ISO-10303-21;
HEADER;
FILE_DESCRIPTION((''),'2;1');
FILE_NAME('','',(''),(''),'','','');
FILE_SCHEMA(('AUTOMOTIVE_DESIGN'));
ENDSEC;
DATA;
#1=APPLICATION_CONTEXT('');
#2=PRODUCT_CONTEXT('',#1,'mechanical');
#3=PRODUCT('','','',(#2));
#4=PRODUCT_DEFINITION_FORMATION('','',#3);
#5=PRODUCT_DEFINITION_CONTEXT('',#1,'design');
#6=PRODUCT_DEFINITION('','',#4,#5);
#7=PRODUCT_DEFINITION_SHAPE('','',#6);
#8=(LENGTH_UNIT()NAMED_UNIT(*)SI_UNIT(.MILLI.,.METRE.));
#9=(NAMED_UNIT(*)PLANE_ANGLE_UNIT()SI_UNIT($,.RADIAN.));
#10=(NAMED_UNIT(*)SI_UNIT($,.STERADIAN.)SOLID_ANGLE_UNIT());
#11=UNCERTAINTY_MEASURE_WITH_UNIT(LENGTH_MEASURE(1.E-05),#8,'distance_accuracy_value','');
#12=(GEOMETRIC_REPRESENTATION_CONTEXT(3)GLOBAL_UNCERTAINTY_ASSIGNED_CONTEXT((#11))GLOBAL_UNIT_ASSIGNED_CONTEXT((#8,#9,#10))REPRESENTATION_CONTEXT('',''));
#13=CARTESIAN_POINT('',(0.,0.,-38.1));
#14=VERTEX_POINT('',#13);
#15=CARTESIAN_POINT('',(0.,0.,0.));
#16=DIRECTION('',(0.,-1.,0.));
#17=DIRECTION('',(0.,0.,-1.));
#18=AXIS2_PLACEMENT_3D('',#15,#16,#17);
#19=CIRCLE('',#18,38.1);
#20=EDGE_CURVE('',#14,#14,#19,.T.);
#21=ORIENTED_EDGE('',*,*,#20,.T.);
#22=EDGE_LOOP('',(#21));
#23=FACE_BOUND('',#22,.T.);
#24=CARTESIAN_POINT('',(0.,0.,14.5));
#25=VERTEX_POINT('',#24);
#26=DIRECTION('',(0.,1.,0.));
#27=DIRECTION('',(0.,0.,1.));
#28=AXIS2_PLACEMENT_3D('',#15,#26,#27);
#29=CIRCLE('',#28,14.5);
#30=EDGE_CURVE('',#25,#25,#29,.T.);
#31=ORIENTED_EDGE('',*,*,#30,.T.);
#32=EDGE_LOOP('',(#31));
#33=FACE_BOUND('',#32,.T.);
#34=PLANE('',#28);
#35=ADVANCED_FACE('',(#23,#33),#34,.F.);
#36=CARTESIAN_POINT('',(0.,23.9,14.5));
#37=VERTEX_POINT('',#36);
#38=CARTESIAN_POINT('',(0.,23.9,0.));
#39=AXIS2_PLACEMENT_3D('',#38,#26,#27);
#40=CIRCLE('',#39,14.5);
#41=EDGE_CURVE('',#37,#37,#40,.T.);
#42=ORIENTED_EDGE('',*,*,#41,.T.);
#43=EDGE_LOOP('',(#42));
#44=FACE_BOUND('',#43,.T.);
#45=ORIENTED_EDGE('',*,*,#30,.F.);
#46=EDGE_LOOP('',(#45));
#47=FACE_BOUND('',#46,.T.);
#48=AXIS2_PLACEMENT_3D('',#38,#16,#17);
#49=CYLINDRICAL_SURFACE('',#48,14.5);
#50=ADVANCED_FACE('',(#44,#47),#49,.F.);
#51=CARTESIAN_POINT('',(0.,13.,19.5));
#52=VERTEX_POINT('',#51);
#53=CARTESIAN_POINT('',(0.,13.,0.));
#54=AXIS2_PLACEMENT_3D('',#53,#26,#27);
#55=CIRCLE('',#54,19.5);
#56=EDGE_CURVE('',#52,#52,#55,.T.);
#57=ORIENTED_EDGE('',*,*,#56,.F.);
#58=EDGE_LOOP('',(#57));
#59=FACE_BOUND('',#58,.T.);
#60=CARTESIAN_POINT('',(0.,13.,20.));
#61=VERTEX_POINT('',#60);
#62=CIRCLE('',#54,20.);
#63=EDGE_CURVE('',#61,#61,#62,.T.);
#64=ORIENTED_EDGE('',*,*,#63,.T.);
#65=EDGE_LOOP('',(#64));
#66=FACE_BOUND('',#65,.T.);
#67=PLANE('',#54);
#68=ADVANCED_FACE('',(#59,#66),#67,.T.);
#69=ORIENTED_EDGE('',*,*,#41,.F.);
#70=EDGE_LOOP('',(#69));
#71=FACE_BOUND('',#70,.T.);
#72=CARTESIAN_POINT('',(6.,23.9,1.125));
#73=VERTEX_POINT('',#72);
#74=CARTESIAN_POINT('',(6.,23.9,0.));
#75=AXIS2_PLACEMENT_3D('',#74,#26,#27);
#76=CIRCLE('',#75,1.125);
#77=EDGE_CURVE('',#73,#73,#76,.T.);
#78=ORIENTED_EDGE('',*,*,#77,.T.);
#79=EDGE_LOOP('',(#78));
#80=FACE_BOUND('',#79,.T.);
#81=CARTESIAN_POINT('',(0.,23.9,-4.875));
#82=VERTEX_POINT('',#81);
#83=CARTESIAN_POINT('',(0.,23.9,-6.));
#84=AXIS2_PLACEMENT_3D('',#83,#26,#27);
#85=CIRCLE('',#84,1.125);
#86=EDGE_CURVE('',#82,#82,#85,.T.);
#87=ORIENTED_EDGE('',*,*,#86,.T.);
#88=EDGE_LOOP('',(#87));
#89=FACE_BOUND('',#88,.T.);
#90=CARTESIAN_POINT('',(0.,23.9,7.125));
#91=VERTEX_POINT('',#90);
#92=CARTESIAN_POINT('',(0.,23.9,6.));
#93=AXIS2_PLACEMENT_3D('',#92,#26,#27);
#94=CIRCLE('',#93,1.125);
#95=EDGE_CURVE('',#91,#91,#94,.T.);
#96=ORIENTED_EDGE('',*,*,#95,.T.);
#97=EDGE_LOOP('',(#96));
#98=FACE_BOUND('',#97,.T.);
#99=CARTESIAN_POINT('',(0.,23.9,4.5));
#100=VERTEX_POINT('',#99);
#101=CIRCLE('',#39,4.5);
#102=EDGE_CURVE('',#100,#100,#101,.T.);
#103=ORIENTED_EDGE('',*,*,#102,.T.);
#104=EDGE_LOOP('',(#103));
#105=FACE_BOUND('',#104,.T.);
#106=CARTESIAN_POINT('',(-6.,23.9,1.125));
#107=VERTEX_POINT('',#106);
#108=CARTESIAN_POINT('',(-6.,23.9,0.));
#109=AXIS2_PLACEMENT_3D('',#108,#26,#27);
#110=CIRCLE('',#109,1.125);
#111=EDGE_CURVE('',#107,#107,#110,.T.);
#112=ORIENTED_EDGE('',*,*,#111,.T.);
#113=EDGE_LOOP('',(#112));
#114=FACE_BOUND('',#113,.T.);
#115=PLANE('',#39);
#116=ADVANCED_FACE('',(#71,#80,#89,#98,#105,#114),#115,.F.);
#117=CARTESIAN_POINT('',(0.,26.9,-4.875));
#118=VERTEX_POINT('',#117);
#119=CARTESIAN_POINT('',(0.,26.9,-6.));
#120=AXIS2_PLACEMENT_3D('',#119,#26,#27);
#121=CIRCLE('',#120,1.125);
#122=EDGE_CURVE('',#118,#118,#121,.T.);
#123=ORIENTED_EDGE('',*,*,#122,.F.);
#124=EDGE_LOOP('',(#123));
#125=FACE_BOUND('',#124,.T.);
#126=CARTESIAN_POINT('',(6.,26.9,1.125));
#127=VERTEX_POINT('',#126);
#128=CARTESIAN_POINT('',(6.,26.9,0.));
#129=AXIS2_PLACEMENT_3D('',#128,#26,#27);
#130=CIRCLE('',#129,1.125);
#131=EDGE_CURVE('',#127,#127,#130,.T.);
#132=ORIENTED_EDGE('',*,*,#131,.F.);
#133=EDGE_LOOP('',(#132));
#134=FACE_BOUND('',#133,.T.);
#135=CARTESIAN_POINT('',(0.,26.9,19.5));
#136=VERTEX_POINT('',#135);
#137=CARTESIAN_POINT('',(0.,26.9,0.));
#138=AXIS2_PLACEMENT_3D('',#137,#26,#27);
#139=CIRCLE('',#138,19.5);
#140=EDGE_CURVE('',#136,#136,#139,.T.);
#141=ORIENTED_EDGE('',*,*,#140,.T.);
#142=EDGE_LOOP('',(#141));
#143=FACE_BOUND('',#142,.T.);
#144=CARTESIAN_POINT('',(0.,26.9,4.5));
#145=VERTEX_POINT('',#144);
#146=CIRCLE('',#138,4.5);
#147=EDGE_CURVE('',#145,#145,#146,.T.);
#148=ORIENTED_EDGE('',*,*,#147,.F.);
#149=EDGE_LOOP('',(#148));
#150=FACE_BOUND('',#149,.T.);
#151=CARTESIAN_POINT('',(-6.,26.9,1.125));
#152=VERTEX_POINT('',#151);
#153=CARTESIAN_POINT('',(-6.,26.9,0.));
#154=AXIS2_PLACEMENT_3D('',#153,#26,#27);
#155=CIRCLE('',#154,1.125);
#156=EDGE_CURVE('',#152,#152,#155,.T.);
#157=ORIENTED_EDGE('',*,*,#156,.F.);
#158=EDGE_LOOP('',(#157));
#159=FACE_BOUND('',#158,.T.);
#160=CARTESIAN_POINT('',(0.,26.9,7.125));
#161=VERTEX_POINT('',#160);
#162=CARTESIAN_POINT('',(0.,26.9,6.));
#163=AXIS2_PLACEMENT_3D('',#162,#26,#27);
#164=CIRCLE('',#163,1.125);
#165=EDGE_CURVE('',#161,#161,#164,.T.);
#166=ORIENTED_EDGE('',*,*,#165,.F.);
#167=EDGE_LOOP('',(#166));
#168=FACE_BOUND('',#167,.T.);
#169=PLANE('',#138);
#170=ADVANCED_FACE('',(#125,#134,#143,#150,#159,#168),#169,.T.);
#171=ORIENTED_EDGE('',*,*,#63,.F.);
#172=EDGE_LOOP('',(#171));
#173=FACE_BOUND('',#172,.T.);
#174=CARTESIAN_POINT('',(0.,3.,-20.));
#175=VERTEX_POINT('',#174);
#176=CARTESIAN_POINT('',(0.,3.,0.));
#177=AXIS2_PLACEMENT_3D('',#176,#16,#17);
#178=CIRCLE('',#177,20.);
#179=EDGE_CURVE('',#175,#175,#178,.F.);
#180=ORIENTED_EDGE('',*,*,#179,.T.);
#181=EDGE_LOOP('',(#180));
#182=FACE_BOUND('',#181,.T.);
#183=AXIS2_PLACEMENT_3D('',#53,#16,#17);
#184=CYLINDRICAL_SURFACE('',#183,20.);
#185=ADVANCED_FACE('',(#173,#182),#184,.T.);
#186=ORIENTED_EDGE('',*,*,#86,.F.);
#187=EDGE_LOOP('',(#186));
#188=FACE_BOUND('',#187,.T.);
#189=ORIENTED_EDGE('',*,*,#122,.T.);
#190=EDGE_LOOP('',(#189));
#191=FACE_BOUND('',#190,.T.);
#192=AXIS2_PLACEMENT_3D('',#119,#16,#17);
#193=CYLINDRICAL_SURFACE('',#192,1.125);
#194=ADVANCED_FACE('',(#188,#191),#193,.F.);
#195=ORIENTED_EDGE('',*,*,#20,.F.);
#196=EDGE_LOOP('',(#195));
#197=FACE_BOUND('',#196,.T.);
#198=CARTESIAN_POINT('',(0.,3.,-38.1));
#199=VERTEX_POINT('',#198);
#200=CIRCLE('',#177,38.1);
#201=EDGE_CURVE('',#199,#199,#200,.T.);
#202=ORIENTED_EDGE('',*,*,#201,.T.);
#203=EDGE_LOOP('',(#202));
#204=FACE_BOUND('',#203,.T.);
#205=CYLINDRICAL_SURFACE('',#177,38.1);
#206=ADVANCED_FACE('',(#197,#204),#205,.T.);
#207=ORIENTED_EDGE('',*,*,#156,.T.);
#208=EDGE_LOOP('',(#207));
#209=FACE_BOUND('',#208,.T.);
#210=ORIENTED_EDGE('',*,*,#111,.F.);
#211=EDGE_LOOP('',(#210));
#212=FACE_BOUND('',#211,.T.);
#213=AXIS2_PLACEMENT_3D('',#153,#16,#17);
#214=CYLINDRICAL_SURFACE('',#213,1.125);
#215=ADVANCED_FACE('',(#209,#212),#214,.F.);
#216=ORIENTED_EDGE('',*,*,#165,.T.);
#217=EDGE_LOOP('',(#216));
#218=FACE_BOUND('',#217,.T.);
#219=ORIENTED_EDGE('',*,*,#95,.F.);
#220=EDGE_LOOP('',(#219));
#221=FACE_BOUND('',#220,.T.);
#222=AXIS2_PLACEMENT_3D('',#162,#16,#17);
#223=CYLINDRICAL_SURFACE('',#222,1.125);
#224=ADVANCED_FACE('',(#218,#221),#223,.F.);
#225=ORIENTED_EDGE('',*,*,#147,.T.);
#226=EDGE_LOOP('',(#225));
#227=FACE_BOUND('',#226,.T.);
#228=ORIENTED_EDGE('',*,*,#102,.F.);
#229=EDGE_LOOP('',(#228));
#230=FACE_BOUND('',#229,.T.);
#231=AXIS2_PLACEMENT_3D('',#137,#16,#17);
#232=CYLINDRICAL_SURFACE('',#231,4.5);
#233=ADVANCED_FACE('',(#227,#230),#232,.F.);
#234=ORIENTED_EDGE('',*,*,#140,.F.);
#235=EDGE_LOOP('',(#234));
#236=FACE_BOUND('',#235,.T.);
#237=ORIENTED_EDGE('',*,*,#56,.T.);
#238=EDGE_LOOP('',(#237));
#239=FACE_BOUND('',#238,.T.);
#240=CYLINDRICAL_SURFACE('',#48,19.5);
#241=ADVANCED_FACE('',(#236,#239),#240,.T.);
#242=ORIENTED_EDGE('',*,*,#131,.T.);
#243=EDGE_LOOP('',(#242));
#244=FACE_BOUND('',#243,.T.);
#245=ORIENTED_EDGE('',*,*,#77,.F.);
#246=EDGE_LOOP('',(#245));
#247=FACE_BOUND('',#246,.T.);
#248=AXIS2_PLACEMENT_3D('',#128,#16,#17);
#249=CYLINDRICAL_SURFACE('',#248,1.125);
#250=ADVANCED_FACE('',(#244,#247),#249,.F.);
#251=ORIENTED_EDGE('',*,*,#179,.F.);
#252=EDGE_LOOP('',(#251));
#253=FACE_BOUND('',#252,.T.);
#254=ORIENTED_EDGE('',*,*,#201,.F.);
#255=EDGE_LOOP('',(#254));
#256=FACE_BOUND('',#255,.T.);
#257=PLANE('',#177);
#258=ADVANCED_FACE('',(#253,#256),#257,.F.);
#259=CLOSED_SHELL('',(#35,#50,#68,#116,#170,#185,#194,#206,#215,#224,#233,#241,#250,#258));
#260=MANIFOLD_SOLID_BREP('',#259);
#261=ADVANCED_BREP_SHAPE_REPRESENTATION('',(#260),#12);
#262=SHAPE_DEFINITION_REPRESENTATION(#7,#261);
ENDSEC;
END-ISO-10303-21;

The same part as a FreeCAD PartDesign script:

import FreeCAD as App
import Part
import Sketcher
from FreeCAD import Vector

doc = App.newDocument("Part")
body = doc.addObject("PartDesign::Body", "Body")

sketch1 = doc.addObject("Sketcher::SketchObject", "Sketch")
body.addObject(sketch1)
sketch1.AttachmentSupport = (doc.XZ_Plane, [""])
sketch1.MapMode = "FlatFace"
sketch1.addGeometry(Part.Circle(Vector(0, 0, 0), Vector(0, 0, 1), 20), False)
sketch1.addGeometry(Part.Circle(Vector(0, 0, 0), Vector(0, 0, 1), 14), False)
sketch1.addConstraint(Sketcher.Constraint("Coincident", 0, 3, -1, 1))
sketch1.addConstraint(Sketcher.Constraint("Coincident", 1, 3, -1, 1))
sketch1.addConstraint(Sketcher.Constraint("Diameter", 0, 39.0))
sketch1.addConstraint(Sketcher.Constraint("Diameter", 1, 29.0))
pad1 = doc.addObject("PartDesign::Pad", "Pad")
body.addObject(pad1)
pad1.Profile = sketch1
pad1.Length = 23.9
pad1.Reversed = True

sketch2 = doc.addObject("Sketcher::SketchObject", "Sketch001")
body.addObject(sketch2)
sketch2.AttachmentSupport = (doc.XZ_Plane, [""])
sketch2.MapMode = "FlatFace"
sketch2.addGeometry(Part.Circle(Vector(0, 0, 0), Vector(0, 0, 1), 38), False)
sketch2.addGeometry(Part.Circle(Vector(0, 0, 0), Vector(0, 0, 1), 20), False)
sketch2.addConstraint(Sketcher.Constraint("Coincident", 0, 3, -1, 1))
sketch2.addConstraint(Sketcher.Constraint("Coincident", 1, 3, -1, 1))
sketch2.addConstraint(Sketcher.Constraint("Diameter", 1, 39.0))
sketch2.addConstraint(Sketcher.Constraint("Diameter", 0, 76.2))
pad2 = doc.addObject("PartDesign::Pad", "Pad001")
body.addObject(pad2)
pad2.Profile = sketch2
pad2.Length = 3
pad2.Reversed = True

sketch3 = doc.addObject("Sketcher::SketchObject", "Sketch002")
body.addObject(sketch3)
sketch3.AttachmentSupport = (doc.XZ_Plane, [""])
sketch3.MapMode = "FlatFace"
sketch3.AttachmentOffset = App.Placement(Vector(0, 0, -3), App.Rotation())
sketch3.addGeometry(Part.Circle(Vector(0, 0, 0), Vector(0, 0, 1), 20), False)
sketch3.addGeometry(Part.Circle(Vector(0, 0, 0), Vector(0, 0, 1), 20), False)
sketch3.addConstraint(Sketcher.Constraint("Coincident", 0, 3, -1, 1))
sketch3.addConstraint(Sketcher.Constraint("Coincident", 1, 3, -1, 1))
sketch3.addConstraint(Sketcher.Constraint("Diameter", 0, 40.0))
sketch3.addConstraint(Sketcher.Constraint("Diameter", 1, 39.0))
pad3 = doc.addObject("PartDesign::Pad", "Pad002")
body.addObject(pad3)
pad3.Profile = sketch3
pad3.Length = 10
pad3.Reversed = True

sketch4 = doc.addObject("Sketcher::SketchObject", "Sketch003")
body.addObject(sketch4)
sketch4.AttachmentSupport = (doc.XZ_Plane, [""])
sketch4.MapMode = "FlatFace"
sketch4.AttachmentOffset = App.Placement(Vector(0, 0, -23.9), App.Rotation())
sketch4.addGeometry(Part.Circle(Vector(0, 0, 0), Vector(0, 0, 1), 19.5), False)
sketch4.addGeometry(Part.Circle(Vector(0, 6, 0), Vector(0, 0, 1), 1.1), False)
sketch4.addGeometry(Part.Circle(Vector(-6, 0, 0), Vector(0, 0, 1), 1.1), False)
sketch4.addGeometry(Part.Circle(Vector(0, 0, 0), Vector(0, 0, 1), 4.5), False)
sketch4.addGeometry(Part.Circle(Vector(6, 0, 0), Vector(0, 0, 1), 1.1), False)
sketch4.addGeometry(Part.Circle(Vector(0, -6, 0), Vector(0, 0, 1), 1.1), False)
sketch4.addConstraint(Sketcher.Constraint("Coincident", 0, 3, -1, 1))
sketch4.addConstraint(Sketcher.Constraint("Coincident", 3, 3, -1, 1))
sketch4.addConstraint(Sketcher.Constraint("Equal", 1, 2))
sketch4.addConstraint(Sketcher.Constraint("Equal", 2, 4))
sketch4.addConstraint(Sketcher.Constraint("Equal", 4, 5))
sketch4.addConstraint(Sketcher.Constraint("Symmetric", 2, 3, 4, 3, -1, 1))
sketch4.addConstraint(Sketcher.Constraint("Symmetric", 1, 3, 5, 3, -1, 1))
sketch4.addConstraint(Sketcher.Constraint("PointOnObject", 1, 3, -2))
sketch4.addConstraint(Sketcher.Constraint("PointOnObject", 2, 3, -1))
sketch4.addConstraint(Sketcher.Constraint("Diameter", 0, 39.0))
sketch4.addConstraint(Sketcher.Constraint("Diameter", 3, 9.0))
sketch4.addConstraint(Sketcher.Constraint("Diameter", 1, 2.25))
sketch4.addConstraint(Sketcher.Constraint("DistanceY", -1, 1, 1, 3, 6.0))
sketch4.addConstraint(Sketcher.Constraint("DistanceX", 2, 3, -1, 1, 6.0))
pad4 = doc.addObject("PartDesign::Pad", "Pad003")
body.addObject(pad4)
pad4.Profile = sketch4
pad4.Length = 3
pad4.Reversed = True

doc.recompute()
